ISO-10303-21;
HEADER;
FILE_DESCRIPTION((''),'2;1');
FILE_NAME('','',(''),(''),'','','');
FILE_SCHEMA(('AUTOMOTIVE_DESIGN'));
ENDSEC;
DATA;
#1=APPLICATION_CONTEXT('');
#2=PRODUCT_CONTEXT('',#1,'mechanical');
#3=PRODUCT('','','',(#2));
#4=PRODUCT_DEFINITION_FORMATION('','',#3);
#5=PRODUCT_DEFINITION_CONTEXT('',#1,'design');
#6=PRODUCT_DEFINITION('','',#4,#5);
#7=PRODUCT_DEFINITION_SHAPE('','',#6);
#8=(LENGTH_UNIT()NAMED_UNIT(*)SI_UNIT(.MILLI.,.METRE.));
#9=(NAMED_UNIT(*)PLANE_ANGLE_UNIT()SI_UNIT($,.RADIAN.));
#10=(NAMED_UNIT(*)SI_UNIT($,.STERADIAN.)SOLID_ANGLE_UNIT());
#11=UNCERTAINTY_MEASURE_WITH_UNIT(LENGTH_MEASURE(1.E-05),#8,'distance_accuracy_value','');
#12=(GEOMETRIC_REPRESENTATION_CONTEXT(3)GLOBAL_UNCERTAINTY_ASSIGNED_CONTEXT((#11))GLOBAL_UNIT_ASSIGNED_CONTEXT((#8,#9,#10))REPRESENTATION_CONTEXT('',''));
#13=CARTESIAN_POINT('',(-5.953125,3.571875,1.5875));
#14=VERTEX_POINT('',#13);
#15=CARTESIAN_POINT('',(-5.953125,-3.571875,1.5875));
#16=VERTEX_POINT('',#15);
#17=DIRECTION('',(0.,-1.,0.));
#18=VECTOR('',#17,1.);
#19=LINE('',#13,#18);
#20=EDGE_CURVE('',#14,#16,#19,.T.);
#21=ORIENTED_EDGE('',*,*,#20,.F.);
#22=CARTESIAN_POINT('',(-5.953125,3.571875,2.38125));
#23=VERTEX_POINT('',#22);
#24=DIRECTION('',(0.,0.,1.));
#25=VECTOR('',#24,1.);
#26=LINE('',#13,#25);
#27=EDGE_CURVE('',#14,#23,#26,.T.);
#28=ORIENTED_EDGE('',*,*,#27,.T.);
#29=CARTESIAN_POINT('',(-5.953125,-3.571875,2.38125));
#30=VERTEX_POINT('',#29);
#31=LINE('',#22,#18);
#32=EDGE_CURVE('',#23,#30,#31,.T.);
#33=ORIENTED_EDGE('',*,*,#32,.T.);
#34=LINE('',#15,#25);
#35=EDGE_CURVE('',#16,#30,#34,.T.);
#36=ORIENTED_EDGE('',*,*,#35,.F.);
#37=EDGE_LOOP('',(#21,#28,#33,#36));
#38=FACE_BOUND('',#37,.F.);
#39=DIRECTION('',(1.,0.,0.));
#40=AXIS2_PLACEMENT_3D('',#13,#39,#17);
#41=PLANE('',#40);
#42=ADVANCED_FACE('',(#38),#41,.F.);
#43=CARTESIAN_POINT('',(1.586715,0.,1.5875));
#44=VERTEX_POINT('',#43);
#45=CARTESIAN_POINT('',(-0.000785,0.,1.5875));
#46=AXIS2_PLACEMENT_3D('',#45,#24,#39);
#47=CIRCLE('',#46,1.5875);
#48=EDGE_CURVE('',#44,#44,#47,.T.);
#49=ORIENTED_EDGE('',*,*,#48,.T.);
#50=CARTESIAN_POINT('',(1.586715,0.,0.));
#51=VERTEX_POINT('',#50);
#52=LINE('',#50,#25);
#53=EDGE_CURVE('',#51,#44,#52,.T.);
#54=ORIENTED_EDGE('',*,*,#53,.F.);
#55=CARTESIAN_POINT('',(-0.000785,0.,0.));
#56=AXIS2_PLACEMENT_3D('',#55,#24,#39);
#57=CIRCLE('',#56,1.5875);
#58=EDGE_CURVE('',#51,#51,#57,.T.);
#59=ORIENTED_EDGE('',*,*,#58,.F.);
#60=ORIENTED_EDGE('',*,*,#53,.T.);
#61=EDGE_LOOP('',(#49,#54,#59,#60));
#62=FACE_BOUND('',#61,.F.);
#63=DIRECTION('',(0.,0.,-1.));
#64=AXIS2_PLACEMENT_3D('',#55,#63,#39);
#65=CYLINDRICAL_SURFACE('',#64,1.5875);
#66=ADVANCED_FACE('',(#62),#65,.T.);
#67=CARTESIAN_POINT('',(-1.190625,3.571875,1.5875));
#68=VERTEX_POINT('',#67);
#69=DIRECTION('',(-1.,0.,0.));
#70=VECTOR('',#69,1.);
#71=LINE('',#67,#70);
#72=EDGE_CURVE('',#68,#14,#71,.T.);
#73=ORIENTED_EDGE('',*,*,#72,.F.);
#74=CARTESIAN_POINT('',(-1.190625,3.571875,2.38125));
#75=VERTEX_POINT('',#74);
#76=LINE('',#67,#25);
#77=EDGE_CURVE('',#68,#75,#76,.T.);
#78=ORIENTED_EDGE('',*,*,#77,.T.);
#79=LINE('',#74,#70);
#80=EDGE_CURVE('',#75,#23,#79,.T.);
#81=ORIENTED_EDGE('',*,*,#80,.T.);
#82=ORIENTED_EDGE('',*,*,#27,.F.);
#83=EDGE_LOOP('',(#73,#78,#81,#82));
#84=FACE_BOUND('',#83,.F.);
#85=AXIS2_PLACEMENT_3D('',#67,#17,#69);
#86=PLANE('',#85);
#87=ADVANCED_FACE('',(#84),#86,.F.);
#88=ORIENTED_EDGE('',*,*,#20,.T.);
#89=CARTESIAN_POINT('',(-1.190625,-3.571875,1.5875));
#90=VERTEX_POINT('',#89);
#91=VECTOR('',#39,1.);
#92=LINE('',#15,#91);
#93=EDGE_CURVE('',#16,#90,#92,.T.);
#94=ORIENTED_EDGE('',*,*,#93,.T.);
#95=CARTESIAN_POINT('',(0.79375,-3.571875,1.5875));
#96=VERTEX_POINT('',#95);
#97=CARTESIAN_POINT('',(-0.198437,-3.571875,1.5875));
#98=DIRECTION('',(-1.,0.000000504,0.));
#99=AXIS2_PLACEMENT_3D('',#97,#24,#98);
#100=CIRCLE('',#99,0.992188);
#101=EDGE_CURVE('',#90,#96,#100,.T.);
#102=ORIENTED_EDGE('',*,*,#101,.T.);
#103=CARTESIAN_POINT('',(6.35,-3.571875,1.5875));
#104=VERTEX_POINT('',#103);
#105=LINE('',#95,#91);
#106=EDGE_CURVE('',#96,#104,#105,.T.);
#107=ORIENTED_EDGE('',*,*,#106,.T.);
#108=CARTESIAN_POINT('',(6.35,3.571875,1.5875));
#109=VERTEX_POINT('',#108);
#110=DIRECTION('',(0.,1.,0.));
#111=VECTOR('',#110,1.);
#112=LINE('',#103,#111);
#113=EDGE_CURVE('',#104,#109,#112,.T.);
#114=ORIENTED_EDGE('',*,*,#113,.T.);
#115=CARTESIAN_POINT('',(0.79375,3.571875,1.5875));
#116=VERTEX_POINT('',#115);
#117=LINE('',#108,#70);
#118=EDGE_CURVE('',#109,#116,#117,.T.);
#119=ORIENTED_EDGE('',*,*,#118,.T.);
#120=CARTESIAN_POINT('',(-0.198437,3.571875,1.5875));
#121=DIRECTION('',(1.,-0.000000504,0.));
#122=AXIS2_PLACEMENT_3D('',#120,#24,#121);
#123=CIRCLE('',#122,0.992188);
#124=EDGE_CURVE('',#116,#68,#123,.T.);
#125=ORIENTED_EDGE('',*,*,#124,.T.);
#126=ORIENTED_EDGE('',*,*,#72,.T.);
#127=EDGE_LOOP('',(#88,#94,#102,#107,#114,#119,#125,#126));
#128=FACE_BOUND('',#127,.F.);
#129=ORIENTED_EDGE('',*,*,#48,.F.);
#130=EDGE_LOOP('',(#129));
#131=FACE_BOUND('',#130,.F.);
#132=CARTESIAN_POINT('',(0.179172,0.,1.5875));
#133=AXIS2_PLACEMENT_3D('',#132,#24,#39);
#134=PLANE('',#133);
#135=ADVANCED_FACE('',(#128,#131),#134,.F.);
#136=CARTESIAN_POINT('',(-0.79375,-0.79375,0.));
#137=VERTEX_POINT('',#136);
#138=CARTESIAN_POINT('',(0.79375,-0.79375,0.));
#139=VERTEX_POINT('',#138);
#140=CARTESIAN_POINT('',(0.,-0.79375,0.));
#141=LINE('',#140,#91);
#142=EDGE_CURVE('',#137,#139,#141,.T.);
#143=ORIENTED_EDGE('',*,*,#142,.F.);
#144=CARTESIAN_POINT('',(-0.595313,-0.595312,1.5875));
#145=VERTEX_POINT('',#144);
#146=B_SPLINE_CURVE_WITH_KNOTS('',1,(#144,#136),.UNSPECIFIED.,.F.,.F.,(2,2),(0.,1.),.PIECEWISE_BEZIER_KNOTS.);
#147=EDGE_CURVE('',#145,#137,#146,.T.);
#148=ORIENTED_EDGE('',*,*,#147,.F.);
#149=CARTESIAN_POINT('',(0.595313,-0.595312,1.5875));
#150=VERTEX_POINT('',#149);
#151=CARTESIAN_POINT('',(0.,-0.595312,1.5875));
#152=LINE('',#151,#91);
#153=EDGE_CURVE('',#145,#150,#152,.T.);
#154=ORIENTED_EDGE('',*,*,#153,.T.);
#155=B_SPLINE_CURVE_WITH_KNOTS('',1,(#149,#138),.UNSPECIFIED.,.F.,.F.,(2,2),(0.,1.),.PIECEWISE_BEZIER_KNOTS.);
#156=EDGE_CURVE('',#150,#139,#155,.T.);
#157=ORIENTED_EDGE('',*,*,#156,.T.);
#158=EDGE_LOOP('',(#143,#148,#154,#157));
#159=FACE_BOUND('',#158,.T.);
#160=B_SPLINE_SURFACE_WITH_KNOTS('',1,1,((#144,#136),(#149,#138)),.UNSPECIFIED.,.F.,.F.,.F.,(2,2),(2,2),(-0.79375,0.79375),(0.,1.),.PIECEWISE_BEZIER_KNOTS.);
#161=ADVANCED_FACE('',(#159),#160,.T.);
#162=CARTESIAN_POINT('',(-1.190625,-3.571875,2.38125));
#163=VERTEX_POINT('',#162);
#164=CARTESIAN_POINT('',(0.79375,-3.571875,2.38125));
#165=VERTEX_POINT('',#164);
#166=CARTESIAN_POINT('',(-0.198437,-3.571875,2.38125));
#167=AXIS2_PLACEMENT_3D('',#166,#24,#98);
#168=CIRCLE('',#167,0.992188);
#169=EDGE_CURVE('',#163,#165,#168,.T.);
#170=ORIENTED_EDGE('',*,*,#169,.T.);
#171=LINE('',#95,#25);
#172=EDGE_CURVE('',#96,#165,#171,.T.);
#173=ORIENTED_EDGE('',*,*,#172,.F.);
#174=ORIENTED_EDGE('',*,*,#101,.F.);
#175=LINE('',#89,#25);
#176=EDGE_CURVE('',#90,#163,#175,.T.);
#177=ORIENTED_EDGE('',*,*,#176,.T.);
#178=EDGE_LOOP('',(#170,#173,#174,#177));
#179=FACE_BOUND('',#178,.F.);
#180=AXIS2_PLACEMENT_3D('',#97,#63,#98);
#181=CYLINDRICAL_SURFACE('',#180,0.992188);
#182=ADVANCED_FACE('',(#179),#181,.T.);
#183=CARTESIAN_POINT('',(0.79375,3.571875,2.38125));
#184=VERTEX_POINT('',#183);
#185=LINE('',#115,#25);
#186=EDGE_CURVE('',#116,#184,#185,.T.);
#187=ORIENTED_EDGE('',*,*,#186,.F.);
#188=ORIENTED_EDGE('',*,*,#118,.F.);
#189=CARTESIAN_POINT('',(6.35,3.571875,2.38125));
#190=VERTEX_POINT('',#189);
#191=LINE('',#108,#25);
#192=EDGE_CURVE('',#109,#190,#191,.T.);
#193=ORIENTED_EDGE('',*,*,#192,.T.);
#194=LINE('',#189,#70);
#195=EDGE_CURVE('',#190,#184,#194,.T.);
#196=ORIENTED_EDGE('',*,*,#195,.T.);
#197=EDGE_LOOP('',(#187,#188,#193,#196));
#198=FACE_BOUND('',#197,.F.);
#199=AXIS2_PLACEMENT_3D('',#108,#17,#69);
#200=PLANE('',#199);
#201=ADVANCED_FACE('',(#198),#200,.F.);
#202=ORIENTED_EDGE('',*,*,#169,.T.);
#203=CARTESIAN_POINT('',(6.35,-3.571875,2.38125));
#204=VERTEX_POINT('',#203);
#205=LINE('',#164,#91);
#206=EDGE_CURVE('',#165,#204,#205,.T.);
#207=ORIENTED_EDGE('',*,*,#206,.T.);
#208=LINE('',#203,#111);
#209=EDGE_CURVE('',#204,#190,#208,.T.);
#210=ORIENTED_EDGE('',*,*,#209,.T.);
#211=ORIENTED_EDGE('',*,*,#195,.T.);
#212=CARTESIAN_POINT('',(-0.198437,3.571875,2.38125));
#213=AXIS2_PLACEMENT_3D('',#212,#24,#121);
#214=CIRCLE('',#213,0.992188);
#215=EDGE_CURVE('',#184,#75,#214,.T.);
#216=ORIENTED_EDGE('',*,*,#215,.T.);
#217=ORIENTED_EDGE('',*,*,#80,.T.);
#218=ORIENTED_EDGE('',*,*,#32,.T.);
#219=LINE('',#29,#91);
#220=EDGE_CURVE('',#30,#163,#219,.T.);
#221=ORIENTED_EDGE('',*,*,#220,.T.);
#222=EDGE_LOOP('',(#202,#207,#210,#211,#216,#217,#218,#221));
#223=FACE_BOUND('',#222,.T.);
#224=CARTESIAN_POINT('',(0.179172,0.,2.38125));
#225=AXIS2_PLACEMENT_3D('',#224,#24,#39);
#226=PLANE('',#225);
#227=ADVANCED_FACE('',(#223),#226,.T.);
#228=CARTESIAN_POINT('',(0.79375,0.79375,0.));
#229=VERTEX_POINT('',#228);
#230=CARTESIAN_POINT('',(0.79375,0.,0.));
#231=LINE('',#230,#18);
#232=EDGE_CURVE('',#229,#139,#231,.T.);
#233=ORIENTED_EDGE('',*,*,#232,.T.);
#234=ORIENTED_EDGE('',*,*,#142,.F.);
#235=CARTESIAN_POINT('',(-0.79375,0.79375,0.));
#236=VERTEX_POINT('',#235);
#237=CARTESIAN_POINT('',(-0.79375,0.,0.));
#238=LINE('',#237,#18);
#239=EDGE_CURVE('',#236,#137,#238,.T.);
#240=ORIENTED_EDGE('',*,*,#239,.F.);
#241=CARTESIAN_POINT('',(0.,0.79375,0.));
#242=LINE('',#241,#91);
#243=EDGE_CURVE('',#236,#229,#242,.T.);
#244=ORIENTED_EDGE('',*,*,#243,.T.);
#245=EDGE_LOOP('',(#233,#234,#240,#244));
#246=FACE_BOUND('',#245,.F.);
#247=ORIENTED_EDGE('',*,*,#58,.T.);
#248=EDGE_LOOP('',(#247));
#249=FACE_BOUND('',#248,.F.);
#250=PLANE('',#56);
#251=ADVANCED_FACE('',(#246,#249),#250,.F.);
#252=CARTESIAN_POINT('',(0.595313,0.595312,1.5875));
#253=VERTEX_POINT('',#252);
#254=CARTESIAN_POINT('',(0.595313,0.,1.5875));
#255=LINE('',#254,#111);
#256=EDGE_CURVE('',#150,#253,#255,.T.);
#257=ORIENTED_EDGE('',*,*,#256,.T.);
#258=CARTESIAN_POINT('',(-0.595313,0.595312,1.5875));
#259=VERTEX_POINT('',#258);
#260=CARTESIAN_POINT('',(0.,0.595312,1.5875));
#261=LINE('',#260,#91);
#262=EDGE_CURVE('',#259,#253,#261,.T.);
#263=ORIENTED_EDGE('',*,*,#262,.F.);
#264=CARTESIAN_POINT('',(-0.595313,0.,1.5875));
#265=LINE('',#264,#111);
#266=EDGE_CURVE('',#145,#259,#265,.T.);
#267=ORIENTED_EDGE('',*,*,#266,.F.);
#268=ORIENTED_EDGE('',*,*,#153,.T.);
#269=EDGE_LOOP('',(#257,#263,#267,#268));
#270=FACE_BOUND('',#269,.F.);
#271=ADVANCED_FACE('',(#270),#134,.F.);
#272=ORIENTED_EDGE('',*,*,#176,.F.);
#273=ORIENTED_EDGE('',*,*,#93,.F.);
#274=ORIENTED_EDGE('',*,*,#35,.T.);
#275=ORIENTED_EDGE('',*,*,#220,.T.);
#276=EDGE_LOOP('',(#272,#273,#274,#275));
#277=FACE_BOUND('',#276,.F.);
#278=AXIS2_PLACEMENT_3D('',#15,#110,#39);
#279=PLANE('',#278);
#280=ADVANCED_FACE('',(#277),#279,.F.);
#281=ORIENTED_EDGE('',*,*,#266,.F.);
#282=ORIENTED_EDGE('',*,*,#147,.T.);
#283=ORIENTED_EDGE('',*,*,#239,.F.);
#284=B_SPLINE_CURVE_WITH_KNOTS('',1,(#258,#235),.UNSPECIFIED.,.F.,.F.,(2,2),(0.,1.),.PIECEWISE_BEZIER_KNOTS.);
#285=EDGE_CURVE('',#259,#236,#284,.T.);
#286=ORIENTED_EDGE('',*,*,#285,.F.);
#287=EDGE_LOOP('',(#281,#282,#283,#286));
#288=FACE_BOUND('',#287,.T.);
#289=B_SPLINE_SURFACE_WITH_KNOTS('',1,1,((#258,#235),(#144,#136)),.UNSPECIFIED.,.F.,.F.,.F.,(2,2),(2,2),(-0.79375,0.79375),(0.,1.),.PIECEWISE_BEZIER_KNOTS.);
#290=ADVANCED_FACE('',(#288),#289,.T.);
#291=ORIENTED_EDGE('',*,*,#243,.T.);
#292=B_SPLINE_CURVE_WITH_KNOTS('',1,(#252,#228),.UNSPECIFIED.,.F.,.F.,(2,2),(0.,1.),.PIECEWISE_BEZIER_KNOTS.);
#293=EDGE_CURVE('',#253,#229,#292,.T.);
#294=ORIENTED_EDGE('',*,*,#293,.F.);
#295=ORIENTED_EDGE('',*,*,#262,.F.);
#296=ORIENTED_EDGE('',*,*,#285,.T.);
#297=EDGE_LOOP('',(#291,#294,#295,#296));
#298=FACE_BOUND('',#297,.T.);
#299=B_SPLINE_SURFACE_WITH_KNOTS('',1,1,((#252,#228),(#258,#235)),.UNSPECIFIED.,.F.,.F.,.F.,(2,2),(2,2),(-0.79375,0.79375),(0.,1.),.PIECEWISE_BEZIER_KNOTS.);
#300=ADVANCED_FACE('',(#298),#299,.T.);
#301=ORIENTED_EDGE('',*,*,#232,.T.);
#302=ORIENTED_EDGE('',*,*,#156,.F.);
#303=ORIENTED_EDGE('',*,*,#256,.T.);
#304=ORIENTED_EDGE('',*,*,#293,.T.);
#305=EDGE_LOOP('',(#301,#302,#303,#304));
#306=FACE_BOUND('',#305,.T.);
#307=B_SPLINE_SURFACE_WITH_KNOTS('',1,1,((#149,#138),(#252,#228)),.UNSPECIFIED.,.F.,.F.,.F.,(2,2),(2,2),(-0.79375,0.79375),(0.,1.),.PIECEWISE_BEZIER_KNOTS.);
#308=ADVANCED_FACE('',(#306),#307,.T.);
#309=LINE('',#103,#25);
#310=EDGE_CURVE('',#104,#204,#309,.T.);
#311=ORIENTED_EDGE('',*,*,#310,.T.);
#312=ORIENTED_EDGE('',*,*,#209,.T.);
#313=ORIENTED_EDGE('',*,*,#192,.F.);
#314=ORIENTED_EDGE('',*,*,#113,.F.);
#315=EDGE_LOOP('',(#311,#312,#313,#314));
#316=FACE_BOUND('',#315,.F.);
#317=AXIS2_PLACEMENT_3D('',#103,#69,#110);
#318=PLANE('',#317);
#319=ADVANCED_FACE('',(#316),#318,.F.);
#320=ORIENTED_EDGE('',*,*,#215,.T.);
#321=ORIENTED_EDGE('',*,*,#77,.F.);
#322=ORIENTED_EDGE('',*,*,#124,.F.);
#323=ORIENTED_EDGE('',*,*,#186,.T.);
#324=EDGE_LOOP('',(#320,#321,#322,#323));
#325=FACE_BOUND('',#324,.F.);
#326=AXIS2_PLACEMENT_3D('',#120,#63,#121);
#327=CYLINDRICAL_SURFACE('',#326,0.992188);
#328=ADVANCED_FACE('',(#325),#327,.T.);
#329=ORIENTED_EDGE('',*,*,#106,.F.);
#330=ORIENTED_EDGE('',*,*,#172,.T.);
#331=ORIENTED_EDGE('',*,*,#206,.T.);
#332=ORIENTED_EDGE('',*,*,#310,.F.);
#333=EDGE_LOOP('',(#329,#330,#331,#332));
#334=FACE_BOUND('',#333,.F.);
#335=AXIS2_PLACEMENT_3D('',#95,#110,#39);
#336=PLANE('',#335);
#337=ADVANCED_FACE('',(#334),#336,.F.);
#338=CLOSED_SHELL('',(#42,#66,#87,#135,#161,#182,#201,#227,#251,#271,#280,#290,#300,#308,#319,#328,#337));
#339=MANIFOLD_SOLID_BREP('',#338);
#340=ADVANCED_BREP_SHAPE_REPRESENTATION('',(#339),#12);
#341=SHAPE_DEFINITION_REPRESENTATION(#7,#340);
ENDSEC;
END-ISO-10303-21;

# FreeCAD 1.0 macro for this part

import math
import FreeCAD as App
import Part
import Sketcher

V = App.Vector
Q = App.Units.Quantity


def add_polygon(sketch, points):
    """Adds a closed chain of lines whose ends are joined by coincident constraints."""
    first, n = sketch.GeometryCount, len(points)
    for a, b in zip(points, points[1:] + points[:1]):
        sketch.addGeometry(Part.LineSegment(App.Vector(*a, 0), App.Vector(*b, 0)), False)
    for i in range(n):
        sketch.addConstraint(Sketcher.Constraint("Coincident", first + i, 2, first + (i + 1) % n, 1))

doc = App.newDocument("Part")
body = doc.addObject("PartDesign::Body", "Body")

sketch1 = body.newObject("Sketcher::SketchObject", "Sketch")
sketch1.AttachmentSupport = (doc.getObject("XY_Plane"), [""])
sketch1.MapMode = "FlatFace"
sketch1.addGeometry(Part.Circle(V(0, 0, 0), V(0, 0, 1), 1.6), False)
sketch1.addConstraint(Sketcher.Constraint("PointOnObject", 0, 3, -1))
sketch1.addConstraint(Sketcher.Constraint("Diameter", 0, Q("0.125 in")))
sketch1.addConstraint(Sketcher.Constraint("DistanceX", 0, 3, -1, 1, 0.000785))
pad1 = body.newObject("PartDesign::Pad", "Pad")
pad1.Profile = sketch1
pad1.Length = Q("0.0625 in")

sketch2 = body.newObject("Sketcher::SketchObject", "Sketch001")
sketch2.AttachmentSupport = (doc.getObject("XY_Plane"), [""])
sketch2.MapMode = "FlatFace"
sketch2.AttachmentOffset = App.Placement(V(0, 0, 0.0625 * 25.4), App.Rotation())
add_polygon(sketch2, [(-0.6, 0.6), (-0.6, -0.6), (0.6, -0.6), (0.6, 0.6)])
sketch2.addConstraint(Sketcher.Constraint("Vertical", 0))
sketch2.addConstraint(Sketcher.Constraint("Horizontal", 1))
sketch2.addConstraint(Sketcher.Constraint("Vertical", 2))
sketch2.addConstraint(Sketcher.Constraint("Horizontal", 3))
sketch2.addConstraint(Sketcher.Constraint("Symmetric", 0, 2, 2, 2, -1, 1))
sketch2.addConstraint(Sketcher.Constraint("Equal", 3, 0))
sketch2.addConstraint(Sketcher.Constraint("DistanceX", 1, 1, 1, 2, Q("0.046875 in")))

sketch3 = body.newObject("Sketcher::SketchObject", "Sketch002")
sketch3.AttachmentSupport = (doc.getObject("XY_Plane"), [""])
sketch3.MapMode = "FlatFace"
add_polygon(sketch3, [(-0.8, -0.8), (-0.8, 0.8), (0.8, 0.8), (0.8, -0.8)])
sketch3.addConstraint(Sketcher.Constraint("Vertical", 0))
sketch3.addConstraint(Sketcher.Constraint("Horizontal", 1))
sketch3.addConstraint(Sketcher.Constraint("Vertical", 2))
sketch3.addConstraint(Sketcher.Constraint("Horizontal", 3))
sketch3.addConstraint(Sketcher.Constraint("Symmetric", 0, 2, 2, 2, -1, 1))
sketch3.addConstraint(Sketcher.Constraint("Equal", 3, 0))
sketch3.addConstraint(Sketcher.Constraint("DistanceX", 1, 1, 1, 2, Q("0.0625 in")))

subtractiveloft = body.newObject("PartDesign::SubtractiveLoft", "SubtractiveLoft")
subtractiveloft.Profile = sketch2
subtractiveloft.Sections = [sketch3]

sketch4 = body.newObject("Sketcher::SketchObject", "Sketch003")
sketch4.AttachmentSupport = (doc.getObject("XY_Plane"), [""])
sketch4.MapMode = "FlatFace"
sketch4.AttachmentOffset = App.Placement(V(0, 0, 0.0625 * 25.4), App.Rotation())
sketch4.addGeometry(Part.LineSegment(V(-6, 3.6, 0), V(-6, -3.6, 0)), False)
sketch4.addGeometry(Part.LineSegment(V(-6, -3.6, 0), V(-1.2, -3.6, 0)), False)
sketch4.addGeometry(Part.ArcOfCircle(Part.Circle(V(-0.2, -3.6, 0), V(0, 0, 1), 1), math.radians(180), math.radians(360)), False)
sketch4.addGeometry(Part.LineSegment(V(0.8, -3.6, 0), V(6.3, -3.6, 0)), False)
sketch4.addGeometry(Part.LineSegment(V(6.3, -3.6, 0), V(6.3, 3.6, 0)), False)
sketch4.addGeometry(Part.LineSegment(V(6.3, 3.6, 0), V(0.8, 3.6, 0)), False)
sketch4.addGeometry(Part.ArcOfCircle(Part.Circle(V(-0.2, 3.6, 0), V(0, 0, 1), 1), math.radians(0), math.radians(180)), False)
sketch4.addGeometry(Part.LineSegment(V(-1.2, 3.6, 0), V(-6, 3.6, 0)), False)
sketch4.addConstraint(Sketcher.Constraint("Coincident", 0, 2, 1, 1))
sketch4.addConstraint(Sketcher.Constraint("Coincident", 1, 2, 2, 1))
sketch4.addConstraint(Sketcher.Constraint("Coincident", 2, 2, 3, 1))
sketch4.addConstraint(Sketcher.Constraint("Coincident", 3, 2, 4, 1))
sketch4.addConstraint(Sketcher.Constraint("Coincident", 4, 2, 5, 1))
sketch4.addConstraint(Sketcher.Constraint("Coincident", 5, 2, 6, 1))
sketch4.addConstraint(Sketcher.Constraint("Coincident", 6, 2, 7, 1))
sketch4.addConstraint(Sketcher.Constraint("Coincident", 7, 2, 0, 1))
sketch4.addConstraint(Sketcher.Constraint("Vertical", 0))
sketch4.addConstraint(Sketcher.Constraint("Horizontal", 1))
sketch4.addConstraint(Sketcher.Constraint("Horizontal", 3))
sketch4.addConstraint(Sketcher.Constraint("Vertical", 4))
sketch4.addConstraint(Sketcher.Constraint("Horizontal", 5))
sketch4.addConstraint(Sketcher.Constraint("Horizontal", 7))
sketch4.addConstraint(Sketcher.Constraint("Equal", 2, 6))
sketch4.addConstraint(Sketcher.Constraint("Symmetric", 2, 3, 6, 3, -1))
sketch4.addConstraint(Sketcher.Constraint("Horizontal", 2, 3, 0, 2))
sketch4.addConstraint(Sketcher.Constraint("Horizontal", 1, 2, 2, 2))
sketch4.addConstraint(Sketcher.Constraint("Horizontal", 6, 3, 4, 2))
sketch4.addConstraint(Sketcher.Constraint("Horizontal", 5, 2, 6, 2))
sketch4.addConstraint(Sketcher.Constraint("DistanceX", 1, 1, 1, 2, Q("0.1875 in")))
sketch4.addConstraint(Sketcher.Constraint("DistanceX", 3, 1, 3, 2, Q("0.21875 in")))
sketch4.addConstraint(Sketcher.Constraint("DistanceY", 0, 2, 0, 1, Q("0.28125 in")))
sketch4.addConstraint(Sketcher.Constraint("DistanceX", -1, 1, 3, 2, Q("0.25 in")))
sketch4.addConstraint(Sketcher.Constraint("DistanceX", 0, 2, -1, 1, Q("0.234375 in")))
pad2 = body.newObject("PartDesign::Pad", "Pad001")
pad2.Profile = sketch4
pad2.Length = Q("0.03125 in")

doc.recompute()
